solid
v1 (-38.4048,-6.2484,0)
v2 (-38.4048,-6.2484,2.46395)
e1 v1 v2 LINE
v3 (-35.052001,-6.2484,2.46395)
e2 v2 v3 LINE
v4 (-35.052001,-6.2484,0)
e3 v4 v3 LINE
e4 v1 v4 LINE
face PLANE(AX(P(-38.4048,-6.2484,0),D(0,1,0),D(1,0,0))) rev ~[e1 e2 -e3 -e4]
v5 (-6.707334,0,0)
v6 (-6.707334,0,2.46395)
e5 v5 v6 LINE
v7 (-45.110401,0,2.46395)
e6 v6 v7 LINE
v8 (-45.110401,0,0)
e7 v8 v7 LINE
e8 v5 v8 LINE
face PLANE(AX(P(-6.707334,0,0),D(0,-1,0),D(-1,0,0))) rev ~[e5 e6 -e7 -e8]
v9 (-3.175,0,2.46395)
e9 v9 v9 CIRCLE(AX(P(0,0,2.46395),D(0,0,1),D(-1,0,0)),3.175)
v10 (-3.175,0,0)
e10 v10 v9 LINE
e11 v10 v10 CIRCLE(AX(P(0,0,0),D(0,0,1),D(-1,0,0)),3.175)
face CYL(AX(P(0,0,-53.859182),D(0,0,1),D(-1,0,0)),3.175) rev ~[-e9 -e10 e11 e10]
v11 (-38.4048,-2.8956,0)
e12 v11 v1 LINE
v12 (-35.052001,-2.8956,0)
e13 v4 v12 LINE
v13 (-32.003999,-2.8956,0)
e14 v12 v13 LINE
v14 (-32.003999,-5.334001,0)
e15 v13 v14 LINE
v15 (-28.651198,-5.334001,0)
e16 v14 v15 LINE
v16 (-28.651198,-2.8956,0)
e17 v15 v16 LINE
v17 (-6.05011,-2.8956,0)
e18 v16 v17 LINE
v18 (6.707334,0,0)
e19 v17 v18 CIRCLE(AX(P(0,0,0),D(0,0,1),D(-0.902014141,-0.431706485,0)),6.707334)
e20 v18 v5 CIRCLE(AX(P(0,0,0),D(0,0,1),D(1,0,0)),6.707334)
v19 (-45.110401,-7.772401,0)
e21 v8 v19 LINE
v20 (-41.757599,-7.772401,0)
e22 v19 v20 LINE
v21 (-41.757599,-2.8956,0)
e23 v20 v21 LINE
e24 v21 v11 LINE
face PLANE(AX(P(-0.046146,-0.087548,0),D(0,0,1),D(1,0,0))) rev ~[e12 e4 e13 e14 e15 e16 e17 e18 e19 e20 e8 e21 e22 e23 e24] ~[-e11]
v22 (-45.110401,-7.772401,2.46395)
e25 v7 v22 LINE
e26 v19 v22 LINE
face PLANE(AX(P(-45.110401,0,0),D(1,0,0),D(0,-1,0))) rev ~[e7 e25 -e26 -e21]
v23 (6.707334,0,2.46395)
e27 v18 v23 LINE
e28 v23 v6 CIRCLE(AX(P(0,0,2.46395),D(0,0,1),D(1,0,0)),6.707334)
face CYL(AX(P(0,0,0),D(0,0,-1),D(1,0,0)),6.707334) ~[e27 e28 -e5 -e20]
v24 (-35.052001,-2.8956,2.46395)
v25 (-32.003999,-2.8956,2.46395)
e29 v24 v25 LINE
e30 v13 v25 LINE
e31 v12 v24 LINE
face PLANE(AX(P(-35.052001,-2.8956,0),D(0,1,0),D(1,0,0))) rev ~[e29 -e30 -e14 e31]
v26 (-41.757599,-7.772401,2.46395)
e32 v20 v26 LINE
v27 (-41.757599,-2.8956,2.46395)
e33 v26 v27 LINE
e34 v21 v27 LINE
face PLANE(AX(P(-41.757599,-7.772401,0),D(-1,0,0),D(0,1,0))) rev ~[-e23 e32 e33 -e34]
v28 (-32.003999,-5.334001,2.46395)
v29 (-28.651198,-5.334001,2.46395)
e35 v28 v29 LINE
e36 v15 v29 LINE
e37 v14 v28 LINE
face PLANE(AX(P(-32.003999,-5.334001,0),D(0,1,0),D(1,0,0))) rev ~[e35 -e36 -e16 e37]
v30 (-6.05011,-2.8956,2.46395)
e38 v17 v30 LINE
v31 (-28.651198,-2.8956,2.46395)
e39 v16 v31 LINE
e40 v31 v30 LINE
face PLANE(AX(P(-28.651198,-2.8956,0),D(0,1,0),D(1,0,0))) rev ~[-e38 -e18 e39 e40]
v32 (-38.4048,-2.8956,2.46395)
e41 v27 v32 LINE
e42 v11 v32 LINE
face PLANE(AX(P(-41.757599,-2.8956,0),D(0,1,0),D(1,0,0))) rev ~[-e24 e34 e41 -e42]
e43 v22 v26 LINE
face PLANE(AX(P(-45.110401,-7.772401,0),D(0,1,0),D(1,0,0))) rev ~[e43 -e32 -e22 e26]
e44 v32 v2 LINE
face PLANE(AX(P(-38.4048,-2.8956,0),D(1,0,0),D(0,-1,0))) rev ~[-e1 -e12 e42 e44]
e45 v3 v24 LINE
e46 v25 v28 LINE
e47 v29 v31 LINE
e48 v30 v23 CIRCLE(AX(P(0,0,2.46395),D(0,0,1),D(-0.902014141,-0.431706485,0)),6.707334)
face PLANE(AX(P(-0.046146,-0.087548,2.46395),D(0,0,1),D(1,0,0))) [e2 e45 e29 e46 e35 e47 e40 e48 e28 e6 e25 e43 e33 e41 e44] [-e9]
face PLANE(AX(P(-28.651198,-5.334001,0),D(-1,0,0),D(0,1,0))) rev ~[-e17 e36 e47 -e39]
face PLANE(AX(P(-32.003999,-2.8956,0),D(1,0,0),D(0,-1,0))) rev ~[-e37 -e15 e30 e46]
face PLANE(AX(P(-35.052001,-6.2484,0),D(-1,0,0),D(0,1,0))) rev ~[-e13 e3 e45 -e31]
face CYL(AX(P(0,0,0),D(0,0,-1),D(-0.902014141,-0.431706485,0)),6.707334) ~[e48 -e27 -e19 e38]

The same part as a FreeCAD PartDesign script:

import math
import FreeCAD as App
import Part
import Sketcher
Q = App.Units.Quantity

doc = App.newDocument("Part")
params = doc.addObject("Spreadsheet::Sheet", "Params")
for row, (alias, value) in enumerate([
    ("sketch1_width", "0.1200001 in"),
    ("sketch1_width2", "0.1320001 in"),
    ("sketch1_width3", "0.132 in"),
    ("sketch1_height", "0.306 in"),
    ("sketch1_height2", "0.192 in"),
    ("pad1_length", "2.46395 mm"),
    ("sketch2_diameter", "0.25 in"),
    ("hole_diameter", "0.25 in"),
], start=1):
    params.set(f"A{row}", alias)
    params.set(f"B{row}", "=" + value)
    params.setAlias(f"B{row}", alias)

body = doc.addObject("PartDesign::Body", "Body")

# Sketch on XY plane
sketch1 = doc.addObject("Sketcher::SketchObject", "Sketch")
body.addObject(sketch1)
sketch1.AttachmentSupport = (doc.XY_Plane, [""])
sketch1.MapMode = "FlatFace"
sketch1.addGeometry(Part.ArcOfCircle(Part.Circle(App.Vector(0, 0, 0), App.Vector(0, 0, 1), 6.7), math.radians(-154), math.radians(0)), False)
sketch1.addGeometry(Part.ArcOfCircle(Part.Circle(App.Vector(0, 0, 0), App.Vector(0, 0, 1), 6.7), math.radians(0), math.radians(180)), False)
sketch1.addGeometry(Part.LineSegment(App.Vector(-6.7, 0, 0), App.Vector(-45.1, 0, 0)), False)
sketch1.addGeometry(Part.LineSegment(App.Vector(-45.1, 0, 0), App.Vector(-45.1, -7.8, 0)), False)
sketch1.addGeometry(Part.LineSegment(App.Vector(-45.1, -7.8, 0), App.Vector(-41.8, -7.8, 0)), False)
sketch1.addGeometry(Part.LineSegment(App.Vector(-41.8, -7.8, 0), App.Vector(-41.8, -2.9, 0)), False)
sketch1.addGeometry(Part.LineSegment(App.Vector(-41.8, -2.9, 0), App.Vector(-38.4, -2.9, 0)), False)
sketch1.addGeometry(Part.LineSegment(App.Vector(-38.4, -2.9, 0), App.Vector(-38.4, -6.2, 0)), False)
sketch1.addGeometry(Part.LineSegment(App.Vector(-38.4, -6.2, 0), App.Vector(-35.1, -6.2, 0)), False)
sketch1.addGeometry(Part.LineSegment(App.Vector(-35.1, -6.2, 0), App.Vector(-35.1, -2.9, 0)), False)
sketch1.addGeometry(Part.LineSegment(App.Vector(-35.1, -2.9, 0), App.Vector(-32, -2.9, 0)), False)
sketch1.addGeometry(Part.LineSegment(App.Vector(-32, -2.9, 0), App.Vector(-32, -5.3, 0)), False)
sketch1.addGeometry(Part.LineSegment(App.Vector(-32, -5.3, 0), App.Vector(-28.7, -5.3, 0)), False)
sketch1.addGeometry(Part.LineSegment(App.Vector(-28.7, -5.3, 0), App.Vector(-28.7, -2.9, 0)), False)
sketch1.addGeometry(Part.LineSegment(App.Vector(-28.7, -2.9, 0), App.Vector(-6.1, -2.9, 0)), False)
sketch1.addConstraint(Sketcher.Constraint("Tangent", 0, 2, 1, 1))
sketch1.addConstraint(Sketcher.Constraint("Coincident", 1, 2, 2, 1))
sketch1.addConstraint(Sketcher.Constraint("Coincident", 2, 2, 3, 1))
sketch1.addConstraint(Sketcher.Constraint("Coincident", 3, 2, 4, 1))
sketch1.addConstraint(Sketcher.Constraint("Coincident", 4, 2, 5, 1))
sketch1.addConstraint(Sketcher.Constraint("Coincident", 5, 2, 6, 1))
sketch1.addConstraint(Sketcher.Constraint("Coincident", 6, 2, 7, 1))
sketch1.addConstraint(Sketcher.Constraint("Coincident", 7, 2, 8, 1))
sketch1.addConstraint(Sketcher.Constraint("Coincident", 8, 2, 9, 1))
sketch1.addConstraint(Sketcher.Constraint("Coincident", 9, 2, 10, 1))
sketch1.addConstraint(Sketcher.Constraint("Coincident", 10, 2, 11, 1))
sketch1.addConstraint(Sketcher.Constraint("Coincident", 11, 2, 12, 1))
sketch1.addConstraint(Sketcher.Constraint("Coincident", 12, 2, 13, 1))
sketch1.addConstraint(Sketcher.Constraint("Coincident", 13, 2, 14, 1))
sketch1.addConstraint(Sketcher.Constraint("Coincident", 14, 2, 0, 1))
sketch1.addConstraint(Sketcher.Constraint("Horizontal", 2))
sketch1.addConstraint(Sketcher.Constraint("Vertical", 3))
sketch1.addConstraint(Sketcher.Constraint("Horizontal", 4))
sketch1.addConstraint(Sketcher.Constraint("Vertical", 5))
sketch1.addConstraint(Sketcher.Constraint("Horizontal", 6))
sketch1.addConstraint(Sketcher.Constraint("Vertical", 7))
sketch1.addConstraint(Sketcher.Constraint("Horizontal", 8))
sketch1.addConstraint(Sketcher.Constraint("Vertical", 9))
sketch1.addConstraint(Sketcher.Constraint("Horizontal", 10))
sketch1.addConstraint(Sketcher.Constraint("Vertical", 11))
sketch1.addConstraint(Sketcher.Constraint("Horizontal", 12))
sketch1.addConstraint(Sketcher.Constraint("Vertical", 13))
sketch1.addConstraint(Sketcher.Constraint("Horizontal", 14))
sketch1.addConstraint(Sketcher.Constraint("Coincident", 0, 3, -1, 1))
sketch1.addConstraint(Sketcher.Constraint("Equal", 0, 1))
sketch1.addConstraint(Sketcher.Constraint("PointOnObject", 0, 2, -1))
sketch1.addConstraint(Sketcher.Constraint("PointOnObject", 1, 2, -1))
sketch1.addConstraint(Sketcher.Constraint("Horizontal", 6, 2, 9, 2))
sketch1.addConstraint(Sketcher.Constraint("Horizontal", 10, 2, 13, 2))
sketch1.addConstraint(Sketcher.Constraint("Equal", 6, 8))
sketch1.addConstraint(Sketcher.Constraint("Equal", 8, 12))
sketch1.addConstraint(Sketcher.Constraint("Equal", 12, 7))
sketch1.addConstraint(Sketcher.Constraint("DistanceX", 10, 1, 10, 2, Q("0.1200001 in")))
sketch1.addConstraint(Sketcher.Constraint("DistanceX", 4, 1, 4, 2, Q("0.1320001 in")))
sketch1.addConstraint(Sketcher.Constraint("DistanceX", 6, 1, 6, 2, Q("0.132 in")))
sketch1.addConstraint(Sketcher.Constraint("DistanceY", 3, 2, 3, 1, Q("0.306 in")))
sketch1.addConstraint(Sketcher.Constraint("DistanceY", 5, 1, 5, 2, Q("0.192 in")))
sketch1.addConstraint(Sketcher.Constraint("DistanceY", 11, 2, 11, 1, Q("0.096 in")))
sketch1.addConstraint(Sketcher.Constraint("DistanceX", 8, 2, -1, 1, Q("1.38 in")))
sketch1.addConstraint(Sketcher.Constraint("Radius", 0, 6.707334))
sketch1.setExpression("Constraints[37]", "Params.sketch1_width")
sketch1.setExpression("Constraints[38]", "Params.sketch1_width2")
sketch1.setExpression("Constraints[39]", "Params.sketch1_width3")
sketch1.setExpression("Constraints[40]", "Params.sketch1_height")
sketch1.setExpression("Constraints[41]", "Params.sketch1_height2")
pad1 = doc.addObject("PartDesign::Pad", "Pad")
body.addObject(pad1)
pad1.Profile = sketch1
pad1.setExpression("Length", "Params.pad1_length")

# Sketch on XY plane
sketch2 = doc.addObject("Sketcher::SketchObject", "Sketch001")
body.addObject(sketch2)
sketch2.AttachmentSupport = (doc.XY_Plane, [""])
sketch2.MapMode = "FlatFace"
sketch2.addGeometry(Part.Circle(App.Vector(0, 0, 0), App.Vector(0, 0, 1), 3.2), False)
sketch2.addConstraint(Sketcher.Constraint("Coincident", 0, 3, -1, 1))
sketch2.addConstraint(Sketcher.Constraint("Diameter", 0, Q("0.25 in")))
sketch2.setExpression("Constraints[1]", "Params.sketch2_diameter")
doc.recompute()
hole = doc.addObject("PartDesign::Hole", "Hole")
body.addObject(hole)
hole.Profile = sketch2
hole.ThreadType = "None"
hole.setExpression("Diameter", "Params.hole_diameter")
hole.DepthType = "ThroughAll"
hole.Reversed = True

doc.recompute()
